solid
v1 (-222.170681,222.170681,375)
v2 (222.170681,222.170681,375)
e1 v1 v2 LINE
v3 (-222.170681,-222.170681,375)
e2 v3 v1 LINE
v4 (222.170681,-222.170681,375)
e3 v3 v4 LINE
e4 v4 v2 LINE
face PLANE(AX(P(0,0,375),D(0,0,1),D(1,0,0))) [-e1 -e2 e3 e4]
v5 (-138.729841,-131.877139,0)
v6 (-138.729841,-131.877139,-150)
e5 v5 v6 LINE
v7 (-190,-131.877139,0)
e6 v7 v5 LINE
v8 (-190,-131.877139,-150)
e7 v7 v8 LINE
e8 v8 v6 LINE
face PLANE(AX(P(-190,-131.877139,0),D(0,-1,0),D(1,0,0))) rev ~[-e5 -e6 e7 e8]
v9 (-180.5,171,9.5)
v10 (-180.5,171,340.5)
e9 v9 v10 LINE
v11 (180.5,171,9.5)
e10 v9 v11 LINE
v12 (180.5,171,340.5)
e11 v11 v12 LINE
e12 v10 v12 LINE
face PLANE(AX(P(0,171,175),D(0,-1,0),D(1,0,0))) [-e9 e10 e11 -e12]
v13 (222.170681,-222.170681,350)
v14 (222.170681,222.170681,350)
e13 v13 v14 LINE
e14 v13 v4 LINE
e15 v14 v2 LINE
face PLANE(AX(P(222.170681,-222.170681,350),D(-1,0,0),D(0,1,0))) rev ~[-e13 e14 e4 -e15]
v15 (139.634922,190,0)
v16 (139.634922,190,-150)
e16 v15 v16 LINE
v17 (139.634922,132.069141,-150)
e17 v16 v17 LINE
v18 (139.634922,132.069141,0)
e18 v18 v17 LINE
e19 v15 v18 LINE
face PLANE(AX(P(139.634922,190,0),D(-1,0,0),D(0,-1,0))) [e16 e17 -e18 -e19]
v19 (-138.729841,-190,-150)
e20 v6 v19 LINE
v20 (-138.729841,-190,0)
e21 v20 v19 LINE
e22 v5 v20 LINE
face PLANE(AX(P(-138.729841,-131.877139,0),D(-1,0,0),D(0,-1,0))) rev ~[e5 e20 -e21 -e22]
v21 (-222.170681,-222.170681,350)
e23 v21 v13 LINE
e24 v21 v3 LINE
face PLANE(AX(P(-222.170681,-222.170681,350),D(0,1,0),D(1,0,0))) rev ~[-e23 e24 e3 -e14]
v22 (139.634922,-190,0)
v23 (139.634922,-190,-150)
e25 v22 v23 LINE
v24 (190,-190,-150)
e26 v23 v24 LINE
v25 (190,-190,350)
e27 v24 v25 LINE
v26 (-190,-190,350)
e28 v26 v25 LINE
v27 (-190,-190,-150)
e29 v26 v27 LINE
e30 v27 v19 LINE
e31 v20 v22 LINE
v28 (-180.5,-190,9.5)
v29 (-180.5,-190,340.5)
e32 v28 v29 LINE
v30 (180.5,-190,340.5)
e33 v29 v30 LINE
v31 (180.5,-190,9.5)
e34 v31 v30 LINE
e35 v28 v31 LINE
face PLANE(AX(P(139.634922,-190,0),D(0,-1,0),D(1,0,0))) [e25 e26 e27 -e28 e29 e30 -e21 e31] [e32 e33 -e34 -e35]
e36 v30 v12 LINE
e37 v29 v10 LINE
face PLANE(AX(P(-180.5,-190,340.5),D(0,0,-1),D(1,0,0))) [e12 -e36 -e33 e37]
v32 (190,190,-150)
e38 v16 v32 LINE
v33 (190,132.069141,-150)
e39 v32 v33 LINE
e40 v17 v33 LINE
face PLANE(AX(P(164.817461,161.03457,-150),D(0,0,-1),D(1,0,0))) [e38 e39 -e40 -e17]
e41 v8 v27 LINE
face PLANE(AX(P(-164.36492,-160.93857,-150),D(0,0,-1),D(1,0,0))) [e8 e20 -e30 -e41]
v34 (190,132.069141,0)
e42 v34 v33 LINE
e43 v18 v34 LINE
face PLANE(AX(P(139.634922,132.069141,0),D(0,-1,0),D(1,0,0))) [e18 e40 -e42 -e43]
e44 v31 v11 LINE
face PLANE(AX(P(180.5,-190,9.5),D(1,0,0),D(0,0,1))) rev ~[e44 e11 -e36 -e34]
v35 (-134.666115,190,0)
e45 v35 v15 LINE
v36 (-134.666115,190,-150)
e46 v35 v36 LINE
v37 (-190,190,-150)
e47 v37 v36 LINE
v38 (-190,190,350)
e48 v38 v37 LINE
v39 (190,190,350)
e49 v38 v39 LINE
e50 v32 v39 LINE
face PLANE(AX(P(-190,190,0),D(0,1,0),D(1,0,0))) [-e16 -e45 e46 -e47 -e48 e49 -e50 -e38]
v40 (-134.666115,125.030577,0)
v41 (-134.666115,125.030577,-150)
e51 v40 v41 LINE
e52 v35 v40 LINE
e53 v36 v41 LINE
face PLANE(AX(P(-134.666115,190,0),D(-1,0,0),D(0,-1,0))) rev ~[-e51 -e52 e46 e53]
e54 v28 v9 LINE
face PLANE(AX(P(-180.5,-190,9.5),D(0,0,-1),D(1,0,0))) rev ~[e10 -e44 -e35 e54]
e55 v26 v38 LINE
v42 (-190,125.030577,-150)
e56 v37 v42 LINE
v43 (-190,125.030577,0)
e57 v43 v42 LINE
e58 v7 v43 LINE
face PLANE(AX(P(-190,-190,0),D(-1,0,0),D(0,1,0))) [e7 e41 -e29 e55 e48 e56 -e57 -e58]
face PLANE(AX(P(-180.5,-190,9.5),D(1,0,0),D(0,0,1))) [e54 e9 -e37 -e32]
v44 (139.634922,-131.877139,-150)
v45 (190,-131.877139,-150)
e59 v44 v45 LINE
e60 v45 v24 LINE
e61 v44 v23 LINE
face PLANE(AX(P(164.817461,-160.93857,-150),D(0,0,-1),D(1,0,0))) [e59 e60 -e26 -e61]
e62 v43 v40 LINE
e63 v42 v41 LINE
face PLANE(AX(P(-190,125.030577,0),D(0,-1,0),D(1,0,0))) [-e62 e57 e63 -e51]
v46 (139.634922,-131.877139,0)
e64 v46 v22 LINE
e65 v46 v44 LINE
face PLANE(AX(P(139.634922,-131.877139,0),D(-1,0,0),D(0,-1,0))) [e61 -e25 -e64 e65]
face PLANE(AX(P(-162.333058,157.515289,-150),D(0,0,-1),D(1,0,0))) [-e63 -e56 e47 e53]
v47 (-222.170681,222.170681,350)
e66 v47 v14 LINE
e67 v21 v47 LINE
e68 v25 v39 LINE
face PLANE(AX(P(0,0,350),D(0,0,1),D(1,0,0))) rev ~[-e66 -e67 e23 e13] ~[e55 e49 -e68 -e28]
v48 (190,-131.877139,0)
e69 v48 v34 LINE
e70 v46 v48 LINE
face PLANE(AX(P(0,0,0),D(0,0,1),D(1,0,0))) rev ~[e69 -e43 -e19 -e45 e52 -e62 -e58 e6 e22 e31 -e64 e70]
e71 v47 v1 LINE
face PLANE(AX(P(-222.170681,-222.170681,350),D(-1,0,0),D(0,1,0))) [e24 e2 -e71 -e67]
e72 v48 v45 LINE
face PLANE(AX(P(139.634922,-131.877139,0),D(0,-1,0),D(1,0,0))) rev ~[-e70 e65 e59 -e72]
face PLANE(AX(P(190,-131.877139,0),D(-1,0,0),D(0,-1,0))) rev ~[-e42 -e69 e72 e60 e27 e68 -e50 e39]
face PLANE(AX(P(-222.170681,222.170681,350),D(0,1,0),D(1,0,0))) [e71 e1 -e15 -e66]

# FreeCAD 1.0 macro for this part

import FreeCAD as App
import Part
import Sketcher

doc = App.newDocument("Part")
params = doc.addObject("Spreadsheet::Sheet", "Params")
for row, (alias, value) in enumerate([
    ("sketch1_width", "380 mm"),
    ("pad1_length", "350 mm"),
    ("sketch2_width", "361 mm"),
    ("sketch2_height", "331 mm"),
    ("pocket1_length", "361 mm"),
    ("pad2_length", "150 mm"),
    ("pad3_length", "25 mm"),
], start=1):
    params.set(f"A{row}", alias)
    params.set(f"B{row}", "=" + value)
    params.setAlias(f"B{row}", alias)

body = doc.addObject("PartDesign::Body", "Body")

# Sketch on XY plane
sketch1 = doc.addObject("Sketcher::SketchObject", "Sketch")
body.addObject(sketch1)
sketch1.AttachmentSupport = (doc.XY_Plane, [""])
sketch1.MapMode = "FlatFace"
sketch1.addGeometry([
    Part.LineSegment(App.Vector(-190, 190, 0), App.Vector(-190, -190, 0)),
    Part.LineSegment(App.Vector(-190, -190, 0), App.Vector(190, -190, 0)),
    Part.LineSegment(App.Vector(190, -190, 0), App.Vector(190, 190, 0)),
    Part.LineSegment(App.Vector(190, 190, 0), App.Vector(-190, 190, 0)),
], False)
sketch1.addConstraint([
    Sketcher.Constraint("Coincident", 0, 2, 1, 1),
    Sketcher.Constraint("Coincident", 1, 2, 2, 1),
    Sketcher.Constraint("Coincident", 2, 2, 3, 1),
    Sketcher.Constraint("Coincident", 3, 2, 0, 1),
    Sketcher.Constraint("Vertical", 0),
    Sketcher.Constraint("Horizontal", 1),
    Sketcher.Constraint("Vertical", 2),
    Sketcher.Constraint("Horizontal", 3),
    Sketcher.Constraint("Symmetric", 0, 2, 2, 2, -1, 1),
    Sketcher.Constraint("Equal", 3, 0),
    Sketcher.Constraint("DistanceX", 1, 1, 1, 2, 380.0),
])
sketch1.setExpression("Constraints[10]", "Params.sketch1_width")
pad1 = doc.addObject("PartDesign::Pad", "Pad")
body.addObject(pad1)
pad1.Profile = sketch1
pad1.setExpression("Length", "Params.pad1_length")

# Sketch on XZ plane
sketch2 = doc.addObject("Sketcher::SketchObject", "Sketch001")
body.addObject(sketch2)
sketch2.AttachmentSupport = (doc.XZ_Plane, [""])
sketch2.MapMode = "FlatFace"
sketch2.AttachmentOffset = App.Placement(App.Vector(0, 0, 190), App.Rotation())
sketch2.addGeometry([
    Part.LineSegment(App.Vector(-180, 340, 0), App.Vector(-180, 10, 0)),
    Part.LineSegment(App.Vector(-180, 10, 0), App.Vector(180, 10, 0)),
    Part.LineSegment(App.Vector(180, 10, 0), App.Vector(180, 340, 0)),
    Part.LineSegment(App.Vector(180, 340, 0), App.Vector(-180, 340, 0)),
], False)
sketch2.addConstraint([
    Sketcher.Constraint("Coincident", 0, 2, 1, 1),
    Sketcher.Constraint("Coincident", 1, 2, 2, 1),
    Sketcher.Constraint("Coincident", 2, 2, 3, 1),
    Sketcher.Constraint("Coincident", 3, 2, 0, 1),
    Sketcher.Constraint("Vertical", 0),
    Sketcher.Constraint("Horizontal", 1),
    Sketcher.Constraint("Vertical", 2),
    Sketcher.Constraint("Horizontal", 3),
    Sketcher.Constraint("DistanceX", 1, 1, 1, 2, 361.0),
    Sketcher.Constraint("DistanceY", 0, 2, 0, 1, 331.0),
    Sketcher.Constraint("DistanceX", 0, 2, -1, 1, 180.5),
    Sketcher.Constraint("DistanceY", -1, 1, 0, 2, 9.5),
])
sketch2.setExpression("Constraints[8]", "Params.sketch2_width")
sketch2.setExpression("Constraints[9]", "Params.sketch2_height")
pocket1 = doc.addObject("PartDesign::Pocket", "Pocket")
body.addObject(pocket1)
pocket1.Profile = sketch2
pocket1.setExpression("Length", "Params.pocket1_length")

# Sketch on XY plane
sketch3 = doc.addObject("Sketcher::SketchObject", "Sketch002")
body.addObject(sketch3)
sketch3.AttachmentSupport = (doc.XY_Plane, [""])
sketch3.MapMode = "FlatFace"
sketch3.addGeometry([
    Part.LineSegment(App.Vector(140, -190, 0), App.Vector(140, -132, 0)),  # 0
    Part.LineSegment(App.Vector(140, -132, 0), App.Vector(190, -132, 0)),  # 1
    Part.LineSegment(App.Vector(190, -132, 0), App.Vector(190, -190, 0)),  # 2
    Part.LineSegment(App.Vector(190, -190, 0), App.Vector(140, -190, 0)),  # 3
    Part.LineSegment(App.Vector(140, 132, 0), App.Vector(140, 190, 0)),  # 4
    Part.LineSegment(App.Vector(140, 190, 0), App.Vector(190, 190, 0)),  # 5
    Part.LineSegment(App.Vector(190, 190, 0), App.Vector(190, 132, 0)),  # 6
    Part.LineSegment(App.Vector(190, 132, 0), App.Vector(140, 132, 0)),  # 7
    Part.LineSegment(App.Vector(-190, 125, 0), App.Vector(-190, 190, 0)),  # 8
    Part.LineSegment(App.Vector(-190, 190, 0), App.Vector(-135, 190, 0)),  # 9
    Part.LineSegment(App.Vector(-135, 190, 0), App.Vector(-135, 125, 0)),  # 10
    Part.LineSegment(App.Vector(-135, 125, 0), App.Vector(-190, 125, 0)),  # 11
    Part.LineSegment(App.Vector(-190, -190, 0), App.Vector(-190, -132, 0)),  # 12
    Part.LineSegment(App.Vector(-190, -132, 0), App.Vector(-139, -132, 0)),  # 13
    Part.LineSegment(App.Vector(-139, -132, 0), App.Vector(-139, -190, 0)),  # 14
    Part.LineSegment(App.Vector(-139, -190, 0), App.Vector(-190, -190, 0)),  # 15
], False)
sketch3.addConstraint([
    Sketcher.Constraint("Coincident", 0, 2, 1, 1),
    Sketcher.Constraint("Coincident", 1, 2, 2, 1),
    Sketcher.Constraint("Coincident", 2, 2, 3, 1),
    Sketcher.Constraint("Coincident", 3, 2, 0, 1),
    Sketcher.Constraint("Coincident", 4, 2, 5, 1),
    Sketcher.Constraint("Coincident", 5, 2, 6, 1),
    Sketcher.Constraint("Coincident", 6, 2, 7, 1),
    Sketcher.Constraint("Coincident", 7, 2, 4, 1),
    Sketcher.Constraint("Coincident", 8, 2, 9, 1),
    Sketcher.Constraint("Coincident", 9, 2, 10, 1),
    Sketcher.Constraint("Coincident", 10, 2, 11, 1),
    Sketcher.Constraint("Coincident", 11, 2, 8, 1),
    Sketcher.Constraint("Coincident", 12, 2, 13, 1),
    Sketcher.Constraint("Coincident", 13, 2, 14, 1),
    Sketcher.Constraint("Coincident", 14, 2, 15, 1),
    Sketcher.Constraint("Coincident", 15, 2, 12, 1),
    Sketcher.Constraint("Vertical", 0),
    Sketcher.Constraint("Horizontal", 1),
    Sketcher.Constraint("Vertical", 2),
    Sketcher.Constraint("Horizontal", 3),
    Sketcher.Constraint("Vertical", 4),
    Sketcher.Constraint("Horizontal", 5),
    Sketcher.Constraint("Vertical", 6),
    Sketcher.Constraint("Horizontal", 7),
    Sketcher.Constraint("Vertical", 8),
    Sketcher.Constraint("Horizontal", 9),
    Sketcher.Constraint("Vertical", 10),
    Sketcher.Constraint("Horizontal", 11),
    Sketcher.Constraint("Vertical", 12),
    Sketcher.Constraint("Horizontal", 13),
    Sketcher.Constraint("Vertical", 14),
    Sketcher.Constraint("Horizontal", 15),
    Sketcher.Constraint("Symmetric", 2, 2, 8, 2, -1, 1),
    Sketcher.Constraint("Symmetric", 5, 2, 15, 2, -1, 1),
    Sketcher.Constraint("Symmetric", 5, 2, 8, 2, -2),
    Sketcher.Constraint("Horizontal", 1, 2, 12, 2),
    Sketcher.Constraint("Vertical", 3, 2, 4, 2),
    Sketcher.Constraint("DistanceX", -1, 1, 1, 2, 190.0),
    Sketcher.Constraint("DistanceY", 2, 2, -1, 1, 190.0),
    Sketcher.Constraint("DistanceX", 13, 1, 13, 2, 51.270159),
    Sketcher.Constraint("DistanceY", 0, 1, 0, 2, 58.122861),
    Sketcher.Constraint("DistanceY", 4, 1, 4, 2, 57.930859),
    Sketcher.Constraint("DistanceX", 1, 1, 1, 2, 50.365078),
    Sketcher.Constraint("DistanceX", 9, 1, 9, 2, 55.333885),
    Sketcher.Constraint("DistanceY", 8, 1, 8, 2, 64.969423),
])
pad2 = doc.addObject("PartDesign::Pad", "Pad001")
body.addObject(pad2)
pad2.Profile = sketch3
pad2.setExpression("Length", "Params.pad2_length")
pad2.Reversed = True

# Sketch on XY plane
sketch4 = doc.addObject("Sketcher::SketchObject", "Sketch003")
body.addObject(sketch4)
sketch4.AttachmentSupport = (doc.XY_Plane, [""])
sketch4.MapMode = "FlatFace"
sketch4.AttachmentOffset = App.Placement(App.Vector(0, 0, 350), App.Rotation())
sketch4.addGeometry([
    Part.LineSegment(App.Vector(-222, 222, 0), App.Vector(-222, -222, 0)),
    Part.LineSegment(App.Vector(-222, -222, 0), App.Vector(222, -222, 0)),
    Part.LineSegment(App.Vector(222, -222, 0), App.Vector(222, 222, 0)),
    Part.LineSegment(App.Vector(222, 222, 0), App.Vector(-222, 222, 0)),
], False)
sketch4.addConstraint([
    Sketcher.Constraint("Coincident", 0, 2, 1, 1),
    Sketcher.Constraint("Coincident", 1, 2, 2, 1),
    Sketcher.Constraint("Coincident", 2, 2, 3, 1),
    Sketcher.Constraint("Coincident", 3, 2, 0, 1),
    Sketcher.Constraint("Vertical", 0),
    Sketcher.Constraint("Horizontal", 1),
    Sketcher.Constraint("Vertical", 2),
    Sketcher.Constraint("Horizontal", 3),
    Sketcher.Constraint("Symmetric", 0, 2, 2, 2, -1, 1),
    Sketcher.Constraint("Equal", 3, 0),
    Sketcher.Constraint("DistanceX", 1, 1, 1, 2, 444.341362),
])
pad3 = doc.addObject("PartDesign::Pad", "Pad002")
body.addObject(pad3)
pad3.Profile = sketch4
pad3.setExpression("Length", "Params.pad3_length")

doc.recompute()
